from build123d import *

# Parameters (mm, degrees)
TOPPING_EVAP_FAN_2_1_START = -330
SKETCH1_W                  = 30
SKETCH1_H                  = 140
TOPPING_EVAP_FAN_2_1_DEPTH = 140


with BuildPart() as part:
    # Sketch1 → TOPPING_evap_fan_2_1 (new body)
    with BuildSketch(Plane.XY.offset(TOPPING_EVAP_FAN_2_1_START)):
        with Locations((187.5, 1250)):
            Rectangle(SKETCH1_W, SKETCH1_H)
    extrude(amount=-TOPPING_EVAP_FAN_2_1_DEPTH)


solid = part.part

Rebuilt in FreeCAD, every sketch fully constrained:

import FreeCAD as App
import Part
import Sketcher
from FreeCAD import Vector
Q = App.Units.Quantity


def add_polygon(sketch, points):
    """Adds a closed chain of lines whose ends are joined by coincident constraints."""
    first, n = sketch.GeometryCount, len(points)
    for a, b in zip(points, points[1:] + points[:1]):
        sketch.addGeometry(Part.LineSegment(App.Vector(*a, 0), App.Vector(*b, 0)), False)
    for i in range(n):
        sketch.addConstraint(Sketcher.Constraint("Coincident", first + i, 2, first + (i + 1) % n, 1))

doc = App.newDocument("Part")
body = doc.addObject("PartDesign::Body", "Body")

sketch1 = body.newObject("Sketcher::SketchObject", "Sketch")
sketch1.AttachmentSupport = (doc.getObject("XY_Plane"), [""])
sketch1.MapMode = "FlatFace"
sketch1.AttachmentOffset = App.Placement(Vector(0, 0, -330), App.Rotation())
add_polygon(sketch1, [(172, 1320), (172, 1180), (202, 1180), (202, 1320)])
sketch1.addConstraint([
    Sketcher.Constraint("Vertical", 0),
    Sketcher.Constraint("Horizontal", 1),
    Sketcher.Constraint("Vertical", 2),
    Sketcher.Constraint("Horizontal", 3),
    Sketcher.Constraint("DistanceX", 1, 1, 1, 2, Q("30 mm")),
    Sketcher.Constraint("DistanceY", 0, 2, 0, 1, Q("140 mm")),
    Sketcher.Constraint("DistanceY", -1, 1, 0, 2, Q("1180 mm")),
    Sketcher.Constraint("DistanceX", -1, 1, 0, 2, Q("172.5 mm")),
])
pad1 = body.newObject("PartDesign::Pad", "Pad")
pad1.Profile = sketch1
pad1.Length = 140
pad1.Reversed = True

doc.recompute()
